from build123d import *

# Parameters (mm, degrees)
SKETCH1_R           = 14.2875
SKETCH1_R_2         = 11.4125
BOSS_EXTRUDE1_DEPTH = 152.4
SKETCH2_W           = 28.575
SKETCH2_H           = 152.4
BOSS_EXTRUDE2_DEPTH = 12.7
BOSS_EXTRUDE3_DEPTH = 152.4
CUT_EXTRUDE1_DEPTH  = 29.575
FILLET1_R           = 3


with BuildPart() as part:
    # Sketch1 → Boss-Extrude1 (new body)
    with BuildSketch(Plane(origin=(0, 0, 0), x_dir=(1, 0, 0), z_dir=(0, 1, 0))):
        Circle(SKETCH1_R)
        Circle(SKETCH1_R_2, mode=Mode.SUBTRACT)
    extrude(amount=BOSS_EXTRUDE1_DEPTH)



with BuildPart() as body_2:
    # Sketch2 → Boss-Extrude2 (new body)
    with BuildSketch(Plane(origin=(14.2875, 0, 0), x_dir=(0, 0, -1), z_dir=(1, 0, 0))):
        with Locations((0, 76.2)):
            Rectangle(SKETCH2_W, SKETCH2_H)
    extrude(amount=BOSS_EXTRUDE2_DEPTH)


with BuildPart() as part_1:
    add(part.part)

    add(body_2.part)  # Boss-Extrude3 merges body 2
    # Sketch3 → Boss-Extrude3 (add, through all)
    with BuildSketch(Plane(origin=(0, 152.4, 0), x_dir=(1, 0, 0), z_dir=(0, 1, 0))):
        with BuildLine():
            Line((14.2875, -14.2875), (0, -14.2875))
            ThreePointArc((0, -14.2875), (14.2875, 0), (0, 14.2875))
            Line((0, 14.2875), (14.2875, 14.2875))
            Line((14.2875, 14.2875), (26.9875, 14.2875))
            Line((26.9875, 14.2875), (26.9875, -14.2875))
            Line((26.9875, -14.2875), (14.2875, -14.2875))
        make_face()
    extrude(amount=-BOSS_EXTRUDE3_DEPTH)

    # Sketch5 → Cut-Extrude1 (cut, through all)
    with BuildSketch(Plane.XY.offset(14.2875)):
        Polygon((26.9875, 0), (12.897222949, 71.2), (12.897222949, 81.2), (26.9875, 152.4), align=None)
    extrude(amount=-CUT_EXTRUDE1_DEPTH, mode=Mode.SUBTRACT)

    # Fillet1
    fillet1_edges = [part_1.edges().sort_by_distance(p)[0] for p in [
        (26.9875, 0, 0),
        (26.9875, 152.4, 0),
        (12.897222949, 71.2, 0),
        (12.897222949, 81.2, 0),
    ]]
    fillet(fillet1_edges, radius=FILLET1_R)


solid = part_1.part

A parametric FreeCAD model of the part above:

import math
import FreeCAD as App
import Part
import Sketcher
Q = App.Units.Quantity


def edges_at(feature, points):
    """Names of the edges that pass closest to the given points."""
    edges = feature.Shape.Edges
    near = lambda p: min(range(len(edges)), key=lambda i: edges[i].distToShape(Part.Vertex(*p))[0])
    return sorted({f"Edge{near(p) + 1}" for p in points})


def add_polygon(sketch, points):
    """Adds a closed chain of lines whose ends are joined by coincident constraints."""
    first, n = sketch.GeometryCount, len(points)
    for a, b in zip(points, points[1:] + points[:1]):
        sketch.addGeometry(Part.LineSegment(App.Vector(*a, 0), App.Vector(*b, 0)), False)
    for i in range(n):
        sketch.addConstraint(Sketcher.Constraint("Coincident", first + i, 2, first + (i + 1) % n, 1))

doc = App.newDocument("Part")
params = doc.addObject("Spreadsheet::Sheet", "Params")
for row, (alias, value) in enumerate([
    ("sketch1_diameter", "1.125 in"),
    ("pad1_length", "6 in"),
    ("sketch2_width", "6 in"),
    ("sketch2_height", "1.125 in"),
    ("pad2_length", "0.5 in"),
    ("sketch3_radius", "0.5625 in"),
    ("sketch3_width", "1.0625 in"),
    ("sketch4_height", "6 in"),
    ("fillet_radius", "3 mm"),
], start=1):
    params.set(f"A{row}", alias)
    params.set(f"B{row}", "=" + value)
    params.setAlias(f"B{row}", alias)

body = doc.addObject("PartDesign::Body", "Body")

# Sketch on XZ plane
sketch1 = body.newObject("Sketcher::SketchObject", "Sketch")
sketch1.AttachmentSupport = (doc.getObject("XZ_Plane"), [""])
sketch1.MapMode = "FlatFace"
sketch1.addGeometry([
    Part.Circle(App.Vector(0, 0, 0), App.Vector(0, 0, 1), 14.2875),
    Part.Circle(App.Vector(0, 0, 0), App.Vector(0, 0, 1), 11.4125),
], False)
sketch1.addConstraint([
    Sketcher.Constraint("Coincident", 0, 3, -1, 1),
    Sketcher.Constraint("Coincident", 1, 3, -1, 1),
    Sketcher.Constraint("Diameter", 0, Q("1.125 in")),
    Sketcher.Constraint("Diameter", 1, Q("22.825 mm")),
])
sketch1.setExpression("Constraints[2]", "Params.sketch1_diameter")
pad1 = body.newObject("PartDesign::Pad", "Pad")
pad1.Profile = sketch1
pad1.setExpression("Length", "Params.pad1_length")
pad1.Reversed = True
body2 = doc.addObject("PartDesign::Body", "Body001")

# Sketch on YZ plane
sketch2 = body2.newObject("Sketcher::SketchObject", "Sketch001")
sketch2.AttachmentSupport = (doc.getObject("YZ_Plane001"), [""])
sketch2.MapMode = "FlatFace"
sketch2.AttachmentOffset = App.Placement(App.Vector(0, 0, 0.5625 * 25.4), App.Rotation())
add_polygon(sketch2, [(152.4, 14.2875), (0, 14.2875), (0, -14.2875), (152.4, -14.2875)])  # lines 0-3
sketch2.addConstraint([
    Sketcher.Constraint("Horizontal", 0),
    Sketcher.Constraint("Vertical", 1),
    Sketcher.Constraint("Horizontal", 2),
    Sketcher.Constraint("Vertical", 3),
    Sketcher.Constraint("Symmetric", 0, 2, 1, 2, -1, 1),
    Sketcher.Constraint("DistanceX", 0, 2, 0, 1, Q("6 in")),
    Sketcher.Constraint("DistanceY", 1, 2, 1, 1, Q("1.125 in")),
])
sketch2.setExpression("Constraints[9]", "Params.sketch2_width")
sketch2.setExpression("Constraints[10]", "Params.sketch2_height")
pad2 = body2.newObject("PartDesign::Pad", "Pad001")
pad2.Profile = sketch2
pad2.setExpression("Length", "Params.pad2_length")
body.AllowCompound = True
doc.recompute()

boolean = body.newObject("PartDesign::Boolean", "Boolean")
boolean.Type = "Fuse"
boolean.addObjects([body2])

# Sketch on XZ plane
sketch3 = body.newObject("Sketcher::SketchObject", "Sketch002")
sketch3.AttachmentSupport = (doc.getObject("XZ_Plane"), [""])
sketch3.MapMode = "FlatFace"
sketch3.AttachmentOffset = App.Placement(App.Vector(0, 0, -6 * 25.4), App.Rotation())
sketch3.addGeometry([
    Part.ArcOfCircle(Part.Circle(App.Vector(0, 0, 0), App.Vector(0, 0, 1), 14.2875), math.radians(-90), math.radians(90)),
    Part.LineSegment(App.Vector(0, 14.2875, 0), App.Vector(26.9875, 14.2875, 0)),
    Part.LineSegment(App.Vector(26.9875, 14.2875, 0), App.Vector(26.9875, -14.2875, 0)),
    Part.LineSegment(App.Vector(26.9875, -14.2875, 0), App.Vector(0, -14.2875, 0)),
], False)
sketch3.addConstraint([
    Sketcher.Constraint("Tangent", 0, 2, 1, 1),
    Sketcher.Constraint("Coincident", 1, 2, 2, 1),
    Sketcher.Constraint("Coincident", 2, 2, 3, 1),
    Sketcher.Constraint("Tangent", 3, 2, 0, 1),
    Sketcher.Constraint("Horizontal", 1),
    Sketcher.Constraint("Vertical", 2),
    Sketcher.Constraint("Horizontal", 3),
    Sketcher.Constraint("Coincident", 0, 3, -1, 1),
    Sketcher.Constraint("Radius", 0, Q("0.5625 in")),
    Sketcher.Constraint("DistanceX", 1, 1, 1, 2, Q("1.0625 in")),
])
sketch3.setExpression("Constraints[8]", "Params.sketch3_radius")
sketch3.setExpression("Constraints[9]", "Params.sketch3_width")
pad3 = body.newObject("PartDesign::Pad", "Pad002")
pad3.Profile = sketch3
pad3.Type = "UpToLast"

# Sketch on XY plane
sketch4 = body.newObject("Sketcher::SketchObject", "Sketch003")
sketch4.AttachmentSupport = (doc.getObject("XY_Plane"), [""])
sketch4.MapMode = "FlatFace"
sketch4.AttachmentOffset = App.Placement(App.Vector(0, 0, 0.5625 * 25.4), App.Rotation())
add_polygon(sketch4, [(12.897223, 71.2), (26.9875, 0), (26.9875, 152.4), (12.897223, 81.2)])  # lines 0-3
sketch4.addConstraint([
    Sketcher.Constraint("Vertical", 1),
    Sketcher.Constraint("Vertical", 3),
    Sketcher.Constraint("PointOnObject", 0, 2, -1),
    Sketcher.Constraint("Equal", 0, 2),
    Sketcher.Constraint("DistanceY", 1, 1, 1, 2, Q("6 in")),
    Sketcher.Constraint("DistanceX", -1, 1, 0, 2, Q("1.0625 in")),
    Sketcher.Constraint("DistanceY", 3, 2, 3, 1, Q("10 mm")),
    Sketcher.Constraint("Distance", 0, Q("72.580823 mm")),
])
sketch4.setExpression("Constraints[8]", "Params.sketch4_height")
pocket1 = body.newObject("PartDesign::Pocket", "Pocket")
pocket1.Profile = sketch4
pocket1.Type = "ThroughAll"
doc.recompute()

fillet = body.newObject("PartDesign::Fillet", "Fillet")
fillet.Base = (pocket1, edges_at(pocket1, [
    (26.988, 0, 0),
    (26.988, 152.4, 0),
    (12.897, 71.2, 0),
    (12.897, 81.2, 0),
]))
fillet.setExpression("Radius", "Params.fillet_radius")

doc.recompute()
